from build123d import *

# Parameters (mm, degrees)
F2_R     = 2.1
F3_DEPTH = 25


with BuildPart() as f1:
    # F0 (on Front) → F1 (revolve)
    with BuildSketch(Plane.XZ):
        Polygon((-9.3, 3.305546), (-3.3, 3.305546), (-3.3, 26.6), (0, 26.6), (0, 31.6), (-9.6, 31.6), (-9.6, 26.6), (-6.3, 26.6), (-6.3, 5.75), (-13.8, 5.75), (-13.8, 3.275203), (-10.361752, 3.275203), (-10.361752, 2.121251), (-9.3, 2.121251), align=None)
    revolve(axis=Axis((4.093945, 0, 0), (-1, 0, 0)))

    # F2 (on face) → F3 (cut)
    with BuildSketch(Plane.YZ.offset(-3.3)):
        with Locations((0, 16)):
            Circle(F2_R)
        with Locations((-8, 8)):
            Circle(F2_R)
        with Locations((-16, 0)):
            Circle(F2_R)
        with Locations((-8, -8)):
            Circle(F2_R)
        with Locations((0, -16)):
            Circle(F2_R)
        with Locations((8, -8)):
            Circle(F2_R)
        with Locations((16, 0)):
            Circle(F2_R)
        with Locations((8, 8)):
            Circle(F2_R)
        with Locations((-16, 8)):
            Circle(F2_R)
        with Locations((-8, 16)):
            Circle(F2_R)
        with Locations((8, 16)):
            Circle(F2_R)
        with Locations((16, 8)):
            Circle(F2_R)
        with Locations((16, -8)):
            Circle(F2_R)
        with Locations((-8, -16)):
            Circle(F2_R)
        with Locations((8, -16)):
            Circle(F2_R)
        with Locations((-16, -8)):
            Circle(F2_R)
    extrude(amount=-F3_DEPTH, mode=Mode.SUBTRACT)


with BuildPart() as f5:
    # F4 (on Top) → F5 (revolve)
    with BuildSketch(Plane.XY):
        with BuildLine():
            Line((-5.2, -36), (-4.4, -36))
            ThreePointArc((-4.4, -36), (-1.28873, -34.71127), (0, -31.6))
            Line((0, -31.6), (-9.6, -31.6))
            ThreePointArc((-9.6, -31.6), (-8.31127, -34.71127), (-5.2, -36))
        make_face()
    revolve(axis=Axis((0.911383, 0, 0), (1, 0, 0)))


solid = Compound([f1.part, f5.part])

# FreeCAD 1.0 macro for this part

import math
import FreeCAD as App
import Part
import Sketcher

V = App.Vector


def add_polygon(sketch, points):
    """Adds a closed chain of lines whose ends are joined by coincident constraints."""
    first, n = sketch.GeometryCount, len(points)
    for a, b in zip(points, points[1:] + points[:1]):
        sketch.addGeometry(Part.LineSegment(App.Vector(*a, 0), App.Vector(*b, 0)), False)
    for i in range(n):
        sketch.addConstraint(Sketcher.Constraint("Coincident", first + i, 2, first + (i + 1) % n, 1))

doc = App.newDocument("Part")
body = doc.addObject("PartDesign::Body", "Body")

# Sketch on XZ plane
sketch1 = body.newObject("Sketcher::SketchObject", "Sketch")
sketch1.AttachmentSupport = (doc.getObject("XZ_Plane"), [""])
sketch1.MapMode = "FlatFace"
add_polygon(sketch1, [(-9.3, 3.3), (-3.3, 3.3), (-3.3, 26.6), (0, 26.6), (0, 31.6), (-9.6, 31.6), (-9.6, 26.6), (-6.3, 26.6), (-6.3, 5.8), (-13.8, 5.8), (-13.8, 3.3), (-10.4, 3.3), (-10.4, 2.1), (-9.3, 2.1)])  # lines 0-13
sketch1.addConstraint([
    Sketcher.Constraint("Horizontal", 0),
    Sketcher.Constraint("Vertical", 1),
    Sketcher.Constraint("Horizontal", 2),
    Sketcher.Constraint("Vertical", 3),
    Sketcher.Constraint("Horizontal", 4),
    Sketcher.Constraint("Vertical", 5),
    Sketcher.Constraint("Horizontal", 6),
    Sketcher.Constraint("Vertical", 7),
    Sketcher.Constraint("Horizontal", 8),
    Sketcher.Constraint("Vertical", 9),
    Sketcher.Constraint("Horizontal", 10),
    Sketcher.Constraint("Vertical", 11),
    Sketcher.Constraint("Horizontal", 12),
    Sketcher.Constraint("Vertical", 13),
    Sketcher.Constraint("PointOnObject", 2, 2, -2),
    Sketcher.Constraint("Horizontal", 2, 2, 5, 2),
    Sketcher.Constraint("Equal", 2, 6),
    Sketcher.Constraint("DistanceX", 0, 1, 0, 2, 6.0),
    Sketcher.Constraint("DistanceY", 3, 1, 3, 2, 5.0),
    Sketcher.Constraint("DistanceX", 2, 1, 2, 2, 3.3),
    Sketcher.Constraint("DistanceX", 4, 2, 4, 1, 9.6),
    Sketcher.Constraint("DistanceX", 8, 2, 8, 1, 7.5),
    Sketcher.Constraint("DistanceY", 7, 2, 7, 1, 20.85),
    Sketcher.Constraint("DistanceY", -1, 1, 1, 2, 26.6),
    Sketcher.Constraint("DistanceX", 10, 1, 10, 2, 3.438248),
    Sketcher.Constraint("DistanceY", 11, 2, 11, 1, 1.153952),
    Sketcher.Constraint("DistanceY", 1, 1, 1, 2, 23.294454),
    Sketcher.Constraint("DistanceY", 9, 2, 9, 1, 2.474797),
])
revolution = body.newObject("PartDesign::Revolution", "Revolution")
revolution.Profile = sketch1
revolution.ReferenceAxis = (sketch1, ["H_Axis"])
revolution.Angle = 360

# Sketch on YZ plane
sketch2 = body.newObject("Sketcher::SketchObject", "Sketch001")
sketch2.AttachmentSupport = (doc.getObject("YZ_Plane"), [""])
sketch2.MapMode = "FlatFace"
sketch2.AttachmentOffset = App.Placement(V(0, 0, -3.3), App.Rotation())
sketch2.addGeometry([
    Part.Circle(V(0, 16, 0), V(0, 0, 1), 2.1),  # 0
    Part.Circle(V(-8, 8, 0), V(0, 0, 1), 2.1),  # 1
    Part.Circle(V(-16, 0, 0), V(0, 0, 1), 2.1),  # 2
    Part.Circle(V(-8, -8, 0), V(0, 0, 1), 2.1),  # 3
    Part.Circle(V(0, -16, 0), V(0, 0, 1), 2.1),  # 4
    Part.Circle(V(8, -8, 0), V(0, 0, 1), 2.1),  # 5
    Part.Circle(V(16, 0, 0), V(0, 0, 1), 2.1),  # 6
    Part.Circle(V(8, 8, 0), V(0, 0, 1), 2.1),  # 7
    Part.Circle(V(-16, 8, 0), V(0, 0, 1), 2.1),  # 8
    Part.Circle(V(-8, 16, 0), V(0, 0, 1), 2.1),  # 9
    Part.Circle(V(8, 16, 0), V(0, 0, 1), 2.1),  # 10
    Part.Circle(V(16, 8, 0), V(0, 0, 1), 2.1),  # 11
    Part.Circle(V(16, -8, 0), V(0, 0, 1), 2.1),  # 12
    Part.Circle(V(-8, -16, 0), V(0, 0, 1), 2.1),  # 13
    Part.Circle(V(8, -16, 0), V(0, 0, 1), 2.1),  # 14
    Part.Circle(V(-16, -8, 0), V(0, 0, 1), 2.1),  # 15
], False)
sketch2.addConstraint([
    Sketcher.Constraint("Equal", 0, 1),
    Sketcher.Constraint("Equal", 1, 2),
    Sketcher.Constraint("Equal", 2, 3),
    Sketcher.Constraint("Equal", 3, 4),
    Sketcher.Constraint("Equal", 4, 5),
    Sketcher.Constraint("Equal", 5, 6),
    Sketcher.Constraint("Equal", 6, 7),
    Sketcher.Constraint("Equal", 7, 8),
    Sketcher.Constraint("Equal", 8, 9),
    Sketcher.Constraint("Equal", 9, 10),
    Sketcher.Constraint("Equal", 10, 11),
    Sketcher.Constraint("Equal", 11, 12),
    Sketcher.Constraint("Equal", 12, 13),
    Sketcher.Constraint("Equal", 13, 14),
    Sketcher.Constraint("Equal", 14, 15),
    Sketcher.Constraint("Symmetric", 0, 3, 4, 3, -1, 1),
    Sketcher.Constraint("Symmetric", 1, 3, 5, 3, -1, 1),
    Sketcher.Constraint("Symmetric", 2, 3, 6, 3, -1, 1),
    Sketcher.Constraint("Symmetric", 3, 3, 7, 3, -1, 1),
    Sketcher.Constraint("Symmetric", 8, 3, 12, 3, -1, 1),
    Sketcher.Constraint("Symmetric", 10, 3, 13, 3, -1, 1),
    Sketcher.Constraint("Symmetric", 9, 3, 14, 3, -1, 1),
    Sketcher.Constraint("Symmetric", 11, 3, 15, 3, -1, 1),
    Sketcher.Constraint("Symmetric", 3, 3, 5, 3, -2),
    Sketcher.Constraint("Symmetric", 9, 3, 10, 3, -2),
    Sketcher.Constraint("Symmetric", 8, 3, 11, 3, -2),
    Sketcher.Constraint("PointOnObject", 0, 3, -2),
    Sketcher.Constraint("PointOnObject", 2, 3, -1),
    Sketcher.Constraint("Horizontal", 7, 3, 8, 3),
    Sketcher.Constraint("Horizontal", 0, 3, 9, 3),
    Sketcher.Constraint("Vertical", 2, 3, 8, 3),
    Sketcher.Constraint("Vertical", 3, 3, 9, 3),
    Sketcher.Constraint("Diameter", 0, 4.2),
    Sketcher.Constraint("DistanceY", -1, 1, 0, 3, 16.0),
    Sketcher.Constraint("DistanceX", 1, 3, -1, 1, 8.0),
    Sketcher.Constraint("DistanceY", -1, 1, 1, 3, 8.0),
    Sketcher.Constraint("DistanceX", 2, 3, -1, 1, 16.0),
])
pocket1 = body.newObject("PartDesign::Pocket", "Pocket")
pocket1.Profile = sketch2
pocket1.Length = 25
body2 = doc.addObject("PartDesign::Body", "Body001")

# Sketch on XY plane
sketch3 = body2.newObject("Sketcher::SketchObject", "Sketch002")
sketch3.AttachmentSupport = (doc.getObject("XY_Plane001"), [""])
sketch3.MapMode = "FlatFace"
sketch3.addGeometry([
    Part.LineSegment(V(-5.2, -36, 0), V(-4.4, -36, 0)),
    Part.ArcOfCircle(Part.Circle(V(-4.4, -31.6, 0), V(0, 0, 1), 4.4), math.radians(-90), math.radians(0)),
    Part.LineSegment(V(0, -31.6, 0), V(-9.6, -31.6, 0)),
    Part.ArcOfCircle(Part.Circle(V(-5.2, -31.6, 0), V(0, 0, 1), 4.4), math.radians(180), math.radians(270)),
], False)
sketch3.addConstraint([
    Sketcher.Constraint("Tangent", 0, 2, 1, 1),
    Sketcher.Constraint("Coincident", 1, 2, 2, 1),
    Sketcher.Constraint("Coincident", 2, 2, 3, 1),
    Sketcher.Constraint("Tangent", 3, 2, 0, 1),
    Sketcher.Constraint("Horizontal", 0),
    Sketcher.Constraint("Horizontal", 2),
    Sketcher.Constraint("Equal", 1, 3),
    Sketcher.Constraint("PointOnObject", 1, 2, -2),
    Sketcher.Constraint("Horizontal", 3, 3, 1, 2),
    Sketcher.Constraint("Radius", 1, 4.399999),
    Sketcher.Constraint("DistanceX", 0, 1, 0, 2, 0.8),
    Sketcher.Constraint("DistanceY", 0, 2, -1, 1, 36.0),
])
revolution2 = body2.newObject("PartDesign::Revolution", "Revolution001")
revolution2.Profile = sketch3
revolution2.ReferenceAxis = (sketch3, ["H_Axis"])
revolution2.Angle = 360

doc.recompute()
